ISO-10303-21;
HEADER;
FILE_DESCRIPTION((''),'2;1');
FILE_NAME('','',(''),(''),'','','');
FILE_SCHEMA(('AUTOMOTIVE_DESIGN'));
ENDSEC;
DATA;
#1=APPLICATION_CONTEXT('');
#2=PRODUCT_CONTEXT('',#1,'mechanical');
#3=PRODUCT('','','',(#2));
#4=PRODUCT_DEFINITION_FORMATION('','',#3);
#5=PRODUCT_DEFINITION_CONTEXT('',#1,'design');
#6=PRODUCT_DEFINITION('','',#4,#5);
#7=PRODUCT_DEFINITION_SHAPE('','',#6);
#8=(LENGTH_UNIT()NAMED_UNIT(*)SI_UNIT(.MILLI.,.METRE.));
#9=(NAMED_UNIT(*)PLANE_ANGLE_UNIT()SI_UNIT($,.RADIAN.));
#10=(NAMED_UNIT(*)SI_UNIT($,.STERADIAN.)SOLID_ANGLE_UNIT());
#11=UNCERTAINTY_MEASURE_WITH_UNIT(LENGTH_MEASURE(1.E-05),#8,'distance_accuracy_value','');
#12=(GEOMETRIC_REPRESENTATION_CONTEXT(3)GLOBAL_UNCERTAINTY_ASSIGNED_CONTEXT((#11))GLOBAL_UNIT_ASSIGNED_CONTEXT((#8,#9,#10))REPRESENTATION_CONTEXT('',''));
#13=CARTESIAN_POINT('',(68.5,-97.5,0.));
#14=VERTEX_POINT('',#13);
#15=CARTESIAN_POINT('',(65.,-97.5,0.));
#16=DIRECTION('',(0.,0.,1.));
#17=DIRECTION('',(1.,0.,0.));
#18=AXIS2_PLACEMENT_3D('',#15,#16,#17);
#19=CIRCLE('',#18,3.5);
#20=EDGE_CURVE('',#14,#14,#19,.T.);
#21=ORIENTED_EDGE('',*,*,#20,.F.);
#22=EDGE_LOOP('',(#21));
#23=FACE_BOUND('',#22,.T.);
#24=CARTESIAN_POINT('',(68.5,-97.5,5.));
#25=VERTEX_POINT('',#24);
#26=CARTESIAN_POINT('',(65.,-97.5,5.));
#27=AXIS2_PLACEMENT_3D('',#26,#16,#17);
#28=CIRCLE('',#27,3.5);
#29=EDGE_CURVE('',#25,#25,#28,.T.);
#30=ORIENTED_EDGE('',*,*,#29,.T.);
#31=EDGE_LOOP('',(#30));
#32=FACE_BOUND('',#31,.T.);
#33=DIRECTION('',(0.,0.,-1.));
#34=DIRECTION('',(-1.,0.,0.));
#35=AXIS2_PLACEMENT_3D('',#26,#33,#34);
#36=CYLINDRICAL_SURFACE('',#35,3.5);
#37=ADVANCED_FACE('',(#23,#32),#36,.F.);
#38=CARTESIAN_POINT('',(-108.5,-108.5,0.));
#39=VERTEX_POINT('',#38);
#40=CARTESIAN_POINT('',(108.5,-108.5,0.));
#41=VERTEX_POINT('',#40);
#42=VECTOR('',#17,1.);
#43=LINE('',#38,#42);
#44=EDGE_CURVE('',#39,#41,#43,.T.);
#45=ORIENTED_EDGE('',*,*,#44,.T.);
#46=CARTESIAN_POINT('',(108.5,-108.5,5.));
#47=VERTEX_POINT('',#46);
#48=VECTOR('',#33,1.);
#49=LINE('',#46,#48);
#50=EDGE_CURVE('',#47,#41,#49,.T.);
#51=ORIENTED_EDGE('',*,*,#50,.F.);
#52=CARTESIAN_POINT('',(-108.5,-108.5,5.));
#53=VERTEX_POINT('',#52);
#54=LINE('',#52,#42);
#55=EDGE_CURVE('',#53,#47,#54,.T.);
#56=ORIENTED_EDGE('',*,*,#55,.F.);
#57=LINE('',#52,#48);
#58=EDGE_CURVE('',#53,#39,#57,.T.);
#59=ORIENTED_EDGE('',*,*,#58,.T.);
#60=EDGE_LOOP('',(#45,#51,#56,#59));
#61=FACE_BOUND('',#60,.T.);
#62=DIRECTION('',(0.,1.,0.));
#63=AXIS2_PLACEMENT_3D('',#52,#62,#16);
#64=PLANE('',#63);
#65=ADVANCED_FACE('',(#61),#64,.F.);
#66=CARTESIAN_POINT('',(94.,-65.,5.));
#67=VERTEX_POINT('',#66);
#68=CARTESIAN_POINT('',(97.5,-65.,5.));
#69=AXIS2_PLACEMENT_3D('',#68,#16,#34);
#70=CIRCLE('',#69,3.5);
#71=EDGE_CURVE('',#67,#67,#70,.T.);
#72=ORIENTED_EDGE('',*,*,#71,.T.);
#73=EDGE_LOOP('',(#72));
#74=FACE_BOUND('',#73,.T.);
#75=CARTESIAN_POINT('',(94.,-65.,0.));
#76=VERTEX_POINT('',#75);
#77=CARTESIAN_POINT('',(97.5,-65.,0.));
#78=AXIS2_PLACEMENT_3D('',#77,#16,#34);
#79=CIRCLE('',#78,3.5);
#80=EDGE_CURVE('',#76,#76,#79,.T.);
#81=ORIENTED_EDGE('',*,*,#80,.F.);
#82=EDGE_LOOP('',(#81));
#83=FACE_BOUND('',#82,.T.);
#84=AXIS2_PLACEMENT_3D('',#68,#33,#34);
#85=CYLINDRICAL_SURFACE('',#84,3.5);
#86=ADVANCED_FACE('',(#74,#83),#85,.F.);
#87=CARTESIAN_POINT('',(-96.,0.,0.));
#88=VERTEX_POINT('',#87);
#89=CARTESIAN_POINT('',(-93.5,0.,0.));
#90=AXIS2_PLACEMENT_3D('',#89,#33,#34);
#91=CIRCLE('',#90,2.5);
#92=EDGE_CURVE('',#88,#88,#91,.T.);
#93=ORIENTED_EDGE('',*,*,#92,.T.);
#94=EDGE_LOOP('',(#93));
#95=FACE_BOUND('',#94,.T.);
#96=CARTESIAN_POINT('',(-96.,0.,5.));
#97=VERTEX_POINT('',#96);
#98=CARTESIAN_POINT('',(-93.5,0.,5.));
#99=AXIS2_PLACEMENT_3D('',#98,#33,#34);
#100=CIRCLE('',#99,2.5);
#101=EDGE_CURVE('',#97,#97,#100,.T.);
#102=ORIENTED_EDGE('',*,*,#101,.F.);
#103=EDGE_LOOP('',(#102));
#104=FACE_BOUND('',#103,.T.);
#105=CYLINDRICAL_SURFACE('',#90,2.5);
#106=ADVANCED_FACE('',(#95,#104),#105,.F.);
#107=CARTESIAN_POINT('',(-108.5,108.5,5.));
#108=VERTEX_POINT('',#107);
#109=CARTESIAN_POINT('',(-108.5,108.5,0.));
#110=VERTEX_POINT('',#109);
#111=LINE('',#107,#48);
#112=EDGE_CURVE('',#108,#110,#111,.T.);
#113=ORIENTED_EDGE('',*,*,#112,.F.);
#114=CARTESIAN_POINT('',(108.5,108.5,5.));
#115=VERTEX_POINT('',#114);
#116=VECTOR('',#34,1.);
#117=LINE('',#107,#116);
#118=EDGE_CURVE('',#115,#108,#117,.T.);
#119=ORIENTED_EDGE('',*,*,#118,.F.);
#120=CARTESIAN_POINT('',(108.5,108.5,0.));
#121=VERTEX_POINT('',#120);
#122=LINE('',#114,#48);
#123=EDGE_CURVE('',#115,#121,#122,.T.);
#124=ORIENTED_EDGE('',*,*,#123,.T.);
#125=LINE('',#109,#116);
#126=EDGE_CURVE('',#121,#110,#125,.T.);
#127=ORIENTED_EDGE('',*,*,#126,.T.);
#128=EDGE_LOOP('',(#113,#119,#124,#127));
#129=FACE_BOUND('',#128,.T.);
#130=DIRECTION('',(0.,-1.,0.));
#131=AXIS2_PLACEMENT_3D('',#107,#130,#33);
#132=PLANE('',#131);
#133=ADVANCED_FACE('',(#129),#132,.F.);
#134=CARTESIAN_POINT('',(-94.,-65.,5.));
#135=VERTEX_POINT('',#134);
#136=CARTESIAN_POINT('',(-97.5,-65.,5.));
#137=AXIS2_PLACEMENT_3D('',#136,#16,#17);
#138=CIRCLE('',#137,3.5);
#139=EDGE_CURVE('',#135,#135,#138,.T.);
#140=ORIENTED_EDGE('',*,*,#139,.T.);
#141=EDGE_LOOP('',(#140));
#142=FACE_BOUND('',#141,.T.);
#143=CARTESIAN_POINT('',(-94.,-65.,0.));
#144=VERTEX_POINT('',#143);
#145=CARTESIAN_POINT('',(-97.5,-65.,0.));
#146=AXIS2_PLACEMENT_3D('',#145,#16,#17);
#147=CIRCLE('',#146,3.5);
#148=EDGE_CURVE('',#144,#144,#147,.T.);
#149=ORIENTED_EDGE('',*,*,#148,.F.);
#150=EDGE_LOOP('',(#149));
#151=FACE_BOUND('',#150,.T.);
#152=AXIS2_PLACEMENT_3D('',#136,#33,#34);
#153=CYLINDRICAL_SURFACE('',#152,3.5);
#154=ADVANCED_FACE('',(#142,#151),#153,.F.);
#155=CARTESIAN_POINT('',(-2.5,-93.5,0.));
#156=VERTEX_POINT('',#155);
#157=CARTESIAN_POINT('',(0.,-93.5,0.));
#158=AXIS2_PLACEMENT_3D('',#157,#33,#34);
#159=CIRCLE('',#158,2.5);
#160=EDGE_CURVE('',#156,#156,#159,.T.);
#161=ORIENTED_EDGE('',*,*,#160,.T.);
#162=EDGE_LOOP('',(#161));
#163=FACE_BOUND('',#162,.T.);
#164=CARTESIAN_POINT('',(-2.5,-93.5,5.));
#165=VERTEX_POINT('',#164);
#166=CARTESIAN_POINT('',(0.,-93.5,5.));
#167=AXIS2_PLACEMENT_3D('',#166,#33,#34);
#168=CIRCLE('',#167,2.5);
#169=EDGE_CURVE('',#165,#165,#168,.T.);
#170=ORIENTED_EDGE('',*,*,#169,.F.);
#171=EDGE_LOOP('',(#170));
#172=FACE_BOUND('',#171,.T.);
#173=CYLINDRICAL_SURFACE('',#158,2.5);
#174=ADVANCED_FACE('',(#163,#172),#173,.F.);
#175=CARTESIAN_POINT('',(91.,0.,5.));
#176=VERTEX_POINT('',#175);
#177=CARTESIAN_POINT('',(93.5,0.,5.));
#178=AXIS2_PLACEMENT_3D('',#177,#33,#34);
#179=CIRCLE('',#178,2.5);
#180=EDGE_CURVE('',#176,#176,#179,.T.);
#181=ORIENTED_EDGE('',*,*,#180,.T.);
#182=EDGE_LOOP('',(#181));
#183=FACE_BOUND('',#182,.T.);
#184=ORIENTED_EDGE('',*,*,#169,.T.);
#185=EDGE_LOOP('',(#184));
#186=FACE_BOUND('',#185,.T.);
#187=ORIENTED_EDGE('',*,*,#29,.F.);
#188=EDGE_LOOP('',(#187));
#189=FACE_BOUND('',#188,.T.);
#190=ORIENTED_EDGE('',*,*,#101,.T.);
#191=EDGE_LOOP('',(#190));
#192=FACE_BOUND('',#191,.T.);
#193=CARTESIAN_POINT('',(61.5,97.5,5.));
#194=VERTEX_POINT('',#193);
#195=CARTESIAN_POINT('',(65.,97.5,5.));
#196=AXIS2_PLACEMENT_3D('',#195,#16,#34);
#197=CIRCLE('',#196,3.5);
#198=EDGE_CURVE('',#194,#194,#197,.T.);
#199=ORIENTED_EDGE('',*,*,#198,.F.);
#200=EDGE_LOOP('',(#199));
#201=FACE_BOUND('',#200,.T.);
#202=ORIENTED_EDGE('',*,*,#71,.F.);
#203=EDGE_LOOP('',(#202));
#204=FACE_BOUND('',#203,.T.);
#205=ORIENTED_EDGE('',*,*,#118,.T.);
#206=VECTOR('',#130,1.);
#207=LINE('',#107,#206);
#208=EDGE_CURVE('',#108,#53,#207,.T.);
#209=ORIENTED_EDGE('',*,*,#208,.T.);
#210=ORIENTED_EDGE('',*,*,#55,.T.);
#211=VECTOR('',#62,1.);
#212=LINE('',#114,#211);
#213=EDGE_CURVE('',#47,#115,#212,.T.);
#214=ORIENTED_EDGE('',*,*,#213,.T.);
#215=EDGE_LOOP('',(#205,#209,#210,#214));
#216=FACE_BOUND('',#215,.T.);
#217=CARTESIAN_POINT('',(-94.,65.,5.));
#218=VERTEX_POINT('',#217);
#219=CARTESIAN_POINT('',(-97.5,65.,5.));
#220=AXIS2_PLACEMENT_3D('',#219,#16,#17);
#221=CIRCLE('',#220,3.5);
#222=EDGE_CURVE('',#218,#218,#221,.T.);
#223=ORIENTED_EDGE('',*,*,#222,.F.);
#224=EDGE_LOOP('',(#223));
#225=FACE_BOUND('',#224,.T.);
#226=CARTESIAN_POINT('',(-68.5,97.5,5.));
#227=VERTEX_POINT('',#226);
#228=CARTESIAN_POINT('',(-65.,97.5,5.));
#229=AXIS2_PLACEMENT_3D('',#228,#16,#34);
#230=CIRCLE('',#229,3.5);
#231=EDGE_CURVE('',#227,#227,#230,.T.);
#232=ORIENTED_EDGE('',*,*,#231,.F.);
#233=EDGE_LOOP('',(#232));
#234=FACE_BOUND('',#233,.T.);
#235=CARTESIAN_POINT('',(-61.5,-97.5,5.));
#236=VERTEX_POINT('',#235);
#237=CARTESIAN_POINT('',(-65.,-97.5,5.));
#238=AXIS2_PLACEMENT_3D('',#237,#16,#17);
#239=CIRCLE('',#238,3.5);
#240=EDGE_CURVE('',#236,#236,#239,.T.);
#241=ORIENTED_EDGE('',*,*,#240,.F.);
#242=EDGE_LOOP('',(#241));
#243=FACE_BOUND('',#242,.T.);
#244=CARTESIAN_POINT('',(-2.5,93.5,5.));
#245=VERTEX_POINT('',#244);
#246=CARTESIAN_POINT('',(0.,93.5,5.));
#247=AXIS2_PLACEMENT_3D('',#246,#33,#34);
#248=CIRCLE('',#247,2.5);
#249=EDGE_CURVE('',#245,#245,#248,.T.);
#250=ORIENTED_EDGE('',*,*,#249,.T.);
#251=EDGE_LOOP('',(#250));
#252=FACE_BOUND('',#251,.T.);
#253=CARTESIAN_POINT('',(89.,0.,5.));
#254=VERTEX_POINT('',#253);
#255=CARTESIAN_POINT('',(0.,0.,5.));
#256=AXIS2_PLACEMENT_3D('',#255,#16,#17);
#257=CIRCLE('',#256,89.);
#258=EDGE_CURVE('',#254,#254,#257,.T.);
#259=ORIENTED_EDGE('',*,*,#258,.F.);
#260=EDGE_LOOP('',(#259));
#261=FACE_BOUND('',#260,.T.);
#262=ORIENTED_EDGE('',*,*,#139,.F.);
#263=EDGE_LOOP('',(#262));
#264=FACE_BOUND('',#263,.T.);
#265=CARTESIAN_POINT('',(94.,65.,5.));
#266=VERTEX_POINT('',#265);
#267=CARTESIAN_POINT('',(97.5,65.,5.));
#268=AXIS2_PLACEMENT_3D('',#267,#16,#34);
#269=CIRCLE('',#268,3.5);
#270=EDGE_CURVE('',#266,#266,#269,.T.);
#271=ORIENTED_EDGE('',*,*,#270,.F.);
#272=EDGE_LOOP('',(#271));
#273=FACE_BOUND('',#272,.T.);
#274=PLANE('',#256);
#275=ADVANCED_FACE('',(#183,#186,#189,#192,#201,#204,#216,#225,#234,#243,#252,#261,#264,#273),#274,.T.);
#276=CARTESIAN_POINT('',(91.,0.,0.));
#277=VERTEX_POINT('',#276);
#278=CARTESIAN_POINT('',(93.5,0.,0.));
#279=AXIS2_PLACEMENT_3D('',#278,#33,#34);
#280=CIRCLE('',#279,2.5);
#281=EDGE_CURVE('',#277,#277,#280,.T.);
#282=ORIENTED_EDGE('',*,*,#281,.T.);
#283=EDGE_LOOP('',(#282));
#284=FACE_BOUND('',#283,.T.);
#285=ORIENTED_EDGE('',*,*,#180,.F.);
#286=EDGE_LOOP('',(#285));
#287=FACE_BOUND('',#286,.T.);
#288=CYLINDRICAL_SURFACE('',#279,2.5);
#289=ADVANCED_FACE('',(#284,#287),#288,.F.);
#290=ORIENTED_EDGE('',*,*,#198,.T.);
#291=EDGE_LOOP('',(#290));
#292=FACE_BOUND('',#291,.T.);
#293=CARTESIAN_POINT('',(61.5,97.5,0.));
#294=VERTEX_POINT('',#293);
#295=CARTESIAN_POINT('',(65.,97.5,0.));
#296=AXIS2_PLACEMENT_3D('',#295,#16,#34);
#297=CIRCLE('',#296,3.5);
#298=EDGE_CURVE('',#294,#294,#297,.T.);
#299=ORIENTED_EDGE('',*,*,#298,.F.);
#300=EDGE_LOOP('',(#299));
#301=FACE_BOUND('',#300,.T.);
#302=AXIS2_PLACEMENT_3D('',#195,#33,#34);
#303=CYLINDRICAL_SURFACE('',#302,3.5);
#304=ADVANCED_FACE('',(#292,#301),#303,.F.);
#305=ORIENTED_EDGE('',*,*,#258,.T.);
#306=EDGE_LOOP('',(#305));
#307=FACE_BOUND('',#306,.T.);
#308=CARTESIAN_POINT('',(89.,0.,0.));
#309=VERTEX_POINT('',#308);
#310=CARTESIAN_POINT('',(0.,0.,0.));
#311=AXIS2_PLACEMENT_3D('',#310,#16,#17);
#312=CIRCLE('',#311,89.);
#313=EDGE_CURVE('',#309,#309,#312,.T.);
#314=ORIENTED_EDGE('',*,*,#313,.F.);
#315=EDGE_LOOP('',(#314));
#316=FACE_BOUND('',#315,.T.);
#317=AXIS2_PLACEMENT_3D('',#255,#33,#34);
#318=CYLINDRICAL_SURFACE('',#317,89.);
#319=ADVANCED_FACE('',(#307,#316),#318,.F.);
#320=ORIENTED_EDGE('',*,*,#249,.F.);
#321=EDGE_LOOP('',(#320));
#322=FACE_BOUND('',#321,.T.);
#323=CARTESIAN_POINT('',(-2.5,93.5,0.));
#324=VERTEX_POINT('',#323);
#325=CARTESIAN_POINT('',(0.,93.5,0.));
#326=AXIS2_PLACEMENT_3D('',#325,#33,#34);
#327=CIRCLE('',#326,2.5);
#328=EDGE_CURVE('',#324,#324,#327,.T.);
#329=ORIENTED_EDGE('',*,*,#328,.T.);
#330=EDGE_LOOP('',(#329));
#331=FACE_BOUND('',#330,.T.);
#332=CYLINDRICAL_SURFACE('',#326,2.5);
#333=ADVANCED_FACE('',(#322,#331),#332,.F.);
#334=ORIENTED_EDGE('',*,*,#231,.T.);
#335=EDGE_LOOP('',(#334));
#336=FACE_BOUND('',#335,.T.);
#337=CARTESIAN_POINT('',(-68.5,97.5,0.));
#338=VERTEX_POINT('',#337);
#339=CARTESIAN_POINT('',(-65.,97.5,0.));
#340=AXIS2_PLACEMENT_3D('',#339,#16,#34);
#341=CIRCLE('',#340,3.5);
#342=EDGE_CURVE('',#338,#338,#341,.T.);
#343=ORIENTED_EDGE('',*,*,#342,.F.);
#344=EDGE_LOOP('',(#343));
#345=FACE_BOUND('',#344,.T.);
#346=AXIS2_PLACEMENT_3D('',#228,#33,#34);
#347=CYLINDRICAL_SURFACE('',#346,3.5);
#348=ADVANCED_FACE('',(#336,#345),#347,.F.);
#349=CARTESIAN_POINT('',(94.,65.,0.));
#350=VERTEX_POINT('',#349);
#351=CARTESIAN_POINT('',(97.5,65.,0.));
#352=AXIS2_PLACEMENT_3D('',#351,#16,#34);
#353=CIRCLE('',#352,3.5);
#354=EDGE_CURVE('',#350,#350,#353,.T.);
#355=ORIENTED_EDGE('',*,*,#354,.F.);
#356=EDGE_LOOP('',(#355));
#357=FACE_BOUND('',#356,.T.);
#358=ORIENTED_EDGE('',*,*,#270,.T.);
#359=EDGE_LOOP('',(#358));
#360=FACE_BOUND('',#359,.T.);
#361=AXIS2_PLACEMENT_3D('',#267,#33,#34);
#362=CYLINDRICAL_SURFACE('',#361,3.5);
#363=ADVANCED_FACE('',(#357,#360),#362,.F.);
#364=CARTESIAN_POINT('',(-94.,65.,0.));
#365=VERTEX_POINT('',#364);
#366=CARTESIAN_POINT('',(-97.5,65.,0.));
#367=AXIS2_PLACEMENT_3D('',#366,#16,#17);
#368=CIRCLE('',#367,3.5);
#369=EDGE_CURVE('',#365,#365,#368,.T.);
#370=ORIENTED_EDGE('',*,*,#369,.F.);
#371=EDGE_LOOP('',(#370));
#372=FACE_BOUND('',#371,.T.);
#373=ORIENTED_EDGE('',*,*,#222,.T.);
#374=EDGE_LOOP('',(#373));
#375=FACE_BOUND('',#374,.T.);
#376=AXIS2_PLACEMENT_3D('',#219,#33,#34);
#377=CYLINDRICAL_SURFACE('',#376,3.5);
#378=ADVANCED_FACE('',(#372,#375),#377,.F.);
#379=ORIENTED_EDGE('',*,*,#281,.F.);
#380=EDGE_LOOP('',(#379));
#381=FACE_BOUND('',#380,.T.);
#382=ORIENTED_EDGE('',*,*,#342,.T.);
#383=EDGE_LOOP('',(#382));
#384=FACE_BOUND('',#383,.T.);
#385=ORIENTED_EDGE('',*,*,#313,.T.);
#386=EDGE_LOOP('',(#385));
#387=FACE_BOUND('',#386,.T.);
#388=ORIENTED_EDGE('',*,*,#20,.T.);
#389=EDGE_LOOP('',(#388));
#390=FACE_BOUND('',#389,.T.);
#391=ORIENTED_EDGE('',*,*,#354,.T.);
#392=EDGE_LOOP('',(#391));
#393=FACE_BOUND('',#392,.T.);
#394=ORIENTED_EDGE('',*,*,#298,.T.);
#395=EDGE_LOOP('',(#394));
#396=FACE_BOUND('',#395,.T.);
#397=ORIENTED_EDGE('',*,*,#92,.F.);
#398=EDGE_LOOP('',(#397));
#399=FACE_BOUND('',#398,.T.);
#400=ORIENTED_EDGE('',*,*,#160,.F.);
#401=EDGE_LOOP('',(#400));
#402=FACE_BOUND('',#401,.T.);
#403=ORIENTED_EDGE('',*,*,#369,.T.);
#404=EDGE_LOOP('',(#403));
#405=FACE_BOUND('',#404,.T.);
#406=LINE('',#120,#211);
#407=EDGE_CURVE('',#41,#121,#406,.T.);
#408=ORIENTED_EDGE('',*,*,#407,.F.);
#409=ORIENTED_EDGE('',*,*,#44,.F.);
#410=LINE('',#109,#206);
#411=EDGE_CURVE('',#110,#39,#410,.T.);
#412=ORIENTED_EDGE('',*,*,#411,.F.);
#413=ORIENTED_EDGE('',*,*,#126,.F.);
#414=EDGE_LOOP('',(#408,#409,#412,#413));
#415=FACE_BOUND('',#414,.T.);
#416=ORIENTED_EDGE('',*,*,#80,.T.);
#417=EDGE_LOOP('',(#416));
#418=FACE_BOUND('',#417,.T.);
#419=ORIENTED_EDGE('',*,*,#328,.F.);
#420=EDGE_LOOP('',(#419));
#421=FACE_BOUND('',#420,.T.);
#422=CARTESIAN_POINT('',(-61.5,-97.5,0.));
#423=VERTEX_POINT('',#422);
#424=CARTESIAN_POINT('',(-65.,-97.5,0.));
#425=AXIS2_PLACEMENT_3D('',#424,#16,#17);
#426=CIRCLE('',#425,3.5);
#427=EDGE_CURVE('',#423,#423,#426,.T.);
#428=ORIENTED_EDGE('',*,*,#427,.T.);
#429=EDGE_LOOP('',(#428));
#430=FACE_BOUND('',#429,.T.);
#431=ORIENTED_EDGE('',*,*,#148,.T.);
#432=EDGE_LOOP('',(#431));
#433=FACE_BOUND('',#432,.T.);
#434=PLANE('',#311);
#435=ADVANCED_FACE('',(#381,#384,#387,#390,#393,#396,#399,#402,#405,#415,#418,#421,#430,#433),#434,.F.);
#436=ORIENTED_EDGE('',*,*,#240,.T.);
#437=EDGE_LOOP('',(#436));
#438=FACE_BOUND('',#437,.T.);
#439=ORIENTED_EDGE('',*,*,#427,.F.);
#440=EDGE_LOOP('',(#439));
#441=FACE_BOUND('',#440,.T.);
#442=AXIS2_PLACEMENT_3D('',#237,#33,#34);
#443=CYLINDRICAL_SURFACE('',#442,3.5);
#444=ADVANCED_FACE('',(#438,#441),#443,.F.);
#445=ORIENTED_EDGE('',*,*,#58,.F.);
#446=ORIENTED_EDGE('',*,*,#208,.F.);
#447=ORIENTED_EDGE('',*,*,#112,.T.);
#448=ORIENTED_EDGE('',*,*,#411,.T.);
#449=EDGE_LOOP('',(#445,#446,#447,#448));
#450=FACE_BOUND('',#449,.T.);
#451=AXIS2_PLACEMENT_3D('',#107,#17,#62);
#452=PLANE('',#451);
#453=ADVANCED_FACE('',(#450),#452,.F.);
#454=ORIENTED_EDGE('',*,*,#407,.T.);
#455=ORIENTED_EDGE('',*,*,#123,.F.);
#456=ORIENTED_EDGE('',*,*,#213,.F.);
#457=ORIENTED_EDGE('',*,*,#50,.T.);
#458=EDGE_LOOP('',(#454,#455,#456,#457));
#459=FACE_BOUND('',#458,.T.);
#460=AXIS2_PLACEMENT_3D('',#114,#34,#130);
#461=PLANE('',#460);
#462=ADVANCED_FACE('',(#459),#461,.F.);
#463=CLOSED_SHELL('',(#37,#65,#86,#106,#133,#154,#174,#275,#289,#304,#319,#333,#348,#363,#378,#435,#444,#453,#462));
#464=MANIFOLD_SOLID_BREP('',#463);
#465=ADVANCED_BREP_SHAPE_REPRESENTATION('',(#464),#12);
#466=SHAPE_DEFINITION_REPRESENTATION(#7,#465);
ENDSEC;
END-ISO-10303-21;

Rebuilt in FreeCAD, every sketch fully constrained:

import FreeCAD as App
import Part
import Sketcher
from FreeCAD import Vector


def add_polygon(sketch, points):
    """Adds a closed chain of lines whose ends are joined by coincident constraints."""
    first, n = sketch.GeometryCount, len(points)
    for a, b in zip(points, points[1:] + points[:1]):
        sketch.addGeometry(Part.LineSegment(App.Vector(*a, 0), App.Vector(*b, 0)), False)
    for i in range(n):
        sketch.addConstraint(Sketcher.Constraint("Coincident", first + i, 2, first + (i + 1) % n, 1))

doc = App.newDocument("Part")
body = doc.addObject("PartDesign::Body", "Body")

# Sketch on XY plane
sketch1 = body.newObject("Sketcher::SketchObject", "Sketch")
sketch1.AttachmentSupport = (doc.getObject("XY_Plane"), [""])
sketch1.MapMode = "FlatFace"
add_polygon(sketch1, [(-108.5, 108.5), (-108.5, -108.5), (108.5, -108.5), (108.5, 108.5)])  # lines 0-3
sketch1.addGeometry(Part.Circle(Vector(-65, -97.5, 0), Vector(0, 0, 1), 3.5), False)  # 4
sketch1.addGeometry(Part.Circle(Vector(-97.5, -65, 0), Vector(0, 0, 1), 3.5), False)  # 5
sketch1.addGeometry(Part.Circle(Vector(65, -97.5, 0), Vector(0, 0, 1), 3.5), False)  # 6
sketch1.addGeometry(Part.Circle(Vector(97.5, -65, 0), Vector(0, 0, 1), 3.5), False)  # 7
sketch1.addGeometry(Part.Circle(Vector(-97.5, 65, 0), Vector(0, 0, 1), 3.5), False)  # 8
sketch1.addGeometry(Part.Circle(Vector(-65, 97.5, 0), Vector(0, 0, 1), 3.5), False)  # 9
sketch1.addGeometry(Part.Circle(Vector(0, 0, 0), Vector(0, 0, 1), 89), False)  # 10
sketch1.addGeometry(Part.Circle(Vector(97.5, 65, 0), Vector(0, 0, 1), 3.5), False)  # 11
sketch1.addGeometry(Part.Circle(Vector(65, 97.5, 0), Vector(0, 0, 1), 3.5), False)  # 12
sketch1.addConstraint([
    Sketcher.Constraint("Vertical", 0),
    Sketcher.Constraint("Horizontal", 1),
    Sketcher.Constraint("Vertical", 2),
    Sketcher.Constraint("Horizontal", 3),
    Sketcher.Constraint("Coincident", 10, 3, -1, 1),
    Sketcher.Constraint("Equal", 4, 5),
    Sketcher.Constraint("Equal", 5, 6),
    Sketcher.Constraint("Equal", 6, 7),
    Sketcher.Constraint("Equal", 7, 8),
    Sketcher.Constraint("Equal", 8, 9),
    Sketcher.Constraint("Equal", 9, 11),
    Sketcher.Constraint("Equal", 11, 12),
    Sketcher.Constraint("Symmetric", 7, 3, 8, 3, -1, 1),
    Sketcher.Constraint("Symmetric", 6, 3, 9, 3, -1, 1),
    Sketcher.Constraint("Symmetric", 5, 3, 11, 3, -1, 1),
    Sketcher.Constraint("Symmetric", 4, 3, 12, 3, -1, 1),
    Sketcher.Constraint("Symmetric", 0, 2, 2, 2, -1, 1),
    Sketcher.Constraint("Symmetric", 4, 3, 6, 3, -2),
    Sketcher.Constraint("Symmetric", 5, 3, 7, 3, -2),
    Sketcher.Constraint("Equal", 3, 0),
    Sketcher.Constraint("Diameter", 4, 7.0),
    Sketcher.Constraint("Diameter", 10, 178.0),
    Sketcher.Constraint("DistanceX", 1, 1, 1, 2, 217.0),
    Sketcher.Constraint("DistanceX", 4, 3, -1, 1, 65.0),
    Sketcher.Constraint("DistanceY", 5, 3, -1, 1, 65.0),
    Sketcher.Constraint("DistanceX", 5, 3, 7, 3, 195.0),
    Sketcher.Constraint("DistanceY", 4, 3, 9, 3, 195.0),
])
pad1 = body.newObject("PartDesign::Pad", "Pad")
pad1.Profile = sketch1
pad1.Length = 5

# Sketch on XY plane
sketch2 = body.newObject("Sketcher::SketchObject", "Sketch001")
sketch2.AttachmentSupport = (doc.getObject("XY_Plane"), [""])
sketch2.MapMode = "FlatFace"
sketch2.addGeometry(Part.Circle(Vector(0, -93.5, 0), Vector(0, 0, 1), 2.5), False)
sketch2.addConstraint([
    Sketcher.Constraint("PointOnObject", 0, 3, -2),
    Sketcher.Constraint("Diameter", 0, 5.0),
    Sketcher.Constraint("DistanceY", 0, 3, -1, 1, 93.5),
])
doc.recompute()
hole = body.newObject("PartDesign::Hole", "Hole")
hole.Profile = sketch2
hole.ThreadType = "None"
hole.Diameter = 5
hole.DepthType = "ThroughAll"
hole.Reversed = True
doc.recompute()

polarpattern = body.newObject("PartDesign::PolarPattern", "PolarPattern")
polarpattern.Originals = [hole]
polarpattern.Axis = (doc.getObject("Z_Axis"), [""])
polarpattern.Angle = 360
polarpattern.Occurrences = 4
body.Tip = polarpattern

doc.recompute()
